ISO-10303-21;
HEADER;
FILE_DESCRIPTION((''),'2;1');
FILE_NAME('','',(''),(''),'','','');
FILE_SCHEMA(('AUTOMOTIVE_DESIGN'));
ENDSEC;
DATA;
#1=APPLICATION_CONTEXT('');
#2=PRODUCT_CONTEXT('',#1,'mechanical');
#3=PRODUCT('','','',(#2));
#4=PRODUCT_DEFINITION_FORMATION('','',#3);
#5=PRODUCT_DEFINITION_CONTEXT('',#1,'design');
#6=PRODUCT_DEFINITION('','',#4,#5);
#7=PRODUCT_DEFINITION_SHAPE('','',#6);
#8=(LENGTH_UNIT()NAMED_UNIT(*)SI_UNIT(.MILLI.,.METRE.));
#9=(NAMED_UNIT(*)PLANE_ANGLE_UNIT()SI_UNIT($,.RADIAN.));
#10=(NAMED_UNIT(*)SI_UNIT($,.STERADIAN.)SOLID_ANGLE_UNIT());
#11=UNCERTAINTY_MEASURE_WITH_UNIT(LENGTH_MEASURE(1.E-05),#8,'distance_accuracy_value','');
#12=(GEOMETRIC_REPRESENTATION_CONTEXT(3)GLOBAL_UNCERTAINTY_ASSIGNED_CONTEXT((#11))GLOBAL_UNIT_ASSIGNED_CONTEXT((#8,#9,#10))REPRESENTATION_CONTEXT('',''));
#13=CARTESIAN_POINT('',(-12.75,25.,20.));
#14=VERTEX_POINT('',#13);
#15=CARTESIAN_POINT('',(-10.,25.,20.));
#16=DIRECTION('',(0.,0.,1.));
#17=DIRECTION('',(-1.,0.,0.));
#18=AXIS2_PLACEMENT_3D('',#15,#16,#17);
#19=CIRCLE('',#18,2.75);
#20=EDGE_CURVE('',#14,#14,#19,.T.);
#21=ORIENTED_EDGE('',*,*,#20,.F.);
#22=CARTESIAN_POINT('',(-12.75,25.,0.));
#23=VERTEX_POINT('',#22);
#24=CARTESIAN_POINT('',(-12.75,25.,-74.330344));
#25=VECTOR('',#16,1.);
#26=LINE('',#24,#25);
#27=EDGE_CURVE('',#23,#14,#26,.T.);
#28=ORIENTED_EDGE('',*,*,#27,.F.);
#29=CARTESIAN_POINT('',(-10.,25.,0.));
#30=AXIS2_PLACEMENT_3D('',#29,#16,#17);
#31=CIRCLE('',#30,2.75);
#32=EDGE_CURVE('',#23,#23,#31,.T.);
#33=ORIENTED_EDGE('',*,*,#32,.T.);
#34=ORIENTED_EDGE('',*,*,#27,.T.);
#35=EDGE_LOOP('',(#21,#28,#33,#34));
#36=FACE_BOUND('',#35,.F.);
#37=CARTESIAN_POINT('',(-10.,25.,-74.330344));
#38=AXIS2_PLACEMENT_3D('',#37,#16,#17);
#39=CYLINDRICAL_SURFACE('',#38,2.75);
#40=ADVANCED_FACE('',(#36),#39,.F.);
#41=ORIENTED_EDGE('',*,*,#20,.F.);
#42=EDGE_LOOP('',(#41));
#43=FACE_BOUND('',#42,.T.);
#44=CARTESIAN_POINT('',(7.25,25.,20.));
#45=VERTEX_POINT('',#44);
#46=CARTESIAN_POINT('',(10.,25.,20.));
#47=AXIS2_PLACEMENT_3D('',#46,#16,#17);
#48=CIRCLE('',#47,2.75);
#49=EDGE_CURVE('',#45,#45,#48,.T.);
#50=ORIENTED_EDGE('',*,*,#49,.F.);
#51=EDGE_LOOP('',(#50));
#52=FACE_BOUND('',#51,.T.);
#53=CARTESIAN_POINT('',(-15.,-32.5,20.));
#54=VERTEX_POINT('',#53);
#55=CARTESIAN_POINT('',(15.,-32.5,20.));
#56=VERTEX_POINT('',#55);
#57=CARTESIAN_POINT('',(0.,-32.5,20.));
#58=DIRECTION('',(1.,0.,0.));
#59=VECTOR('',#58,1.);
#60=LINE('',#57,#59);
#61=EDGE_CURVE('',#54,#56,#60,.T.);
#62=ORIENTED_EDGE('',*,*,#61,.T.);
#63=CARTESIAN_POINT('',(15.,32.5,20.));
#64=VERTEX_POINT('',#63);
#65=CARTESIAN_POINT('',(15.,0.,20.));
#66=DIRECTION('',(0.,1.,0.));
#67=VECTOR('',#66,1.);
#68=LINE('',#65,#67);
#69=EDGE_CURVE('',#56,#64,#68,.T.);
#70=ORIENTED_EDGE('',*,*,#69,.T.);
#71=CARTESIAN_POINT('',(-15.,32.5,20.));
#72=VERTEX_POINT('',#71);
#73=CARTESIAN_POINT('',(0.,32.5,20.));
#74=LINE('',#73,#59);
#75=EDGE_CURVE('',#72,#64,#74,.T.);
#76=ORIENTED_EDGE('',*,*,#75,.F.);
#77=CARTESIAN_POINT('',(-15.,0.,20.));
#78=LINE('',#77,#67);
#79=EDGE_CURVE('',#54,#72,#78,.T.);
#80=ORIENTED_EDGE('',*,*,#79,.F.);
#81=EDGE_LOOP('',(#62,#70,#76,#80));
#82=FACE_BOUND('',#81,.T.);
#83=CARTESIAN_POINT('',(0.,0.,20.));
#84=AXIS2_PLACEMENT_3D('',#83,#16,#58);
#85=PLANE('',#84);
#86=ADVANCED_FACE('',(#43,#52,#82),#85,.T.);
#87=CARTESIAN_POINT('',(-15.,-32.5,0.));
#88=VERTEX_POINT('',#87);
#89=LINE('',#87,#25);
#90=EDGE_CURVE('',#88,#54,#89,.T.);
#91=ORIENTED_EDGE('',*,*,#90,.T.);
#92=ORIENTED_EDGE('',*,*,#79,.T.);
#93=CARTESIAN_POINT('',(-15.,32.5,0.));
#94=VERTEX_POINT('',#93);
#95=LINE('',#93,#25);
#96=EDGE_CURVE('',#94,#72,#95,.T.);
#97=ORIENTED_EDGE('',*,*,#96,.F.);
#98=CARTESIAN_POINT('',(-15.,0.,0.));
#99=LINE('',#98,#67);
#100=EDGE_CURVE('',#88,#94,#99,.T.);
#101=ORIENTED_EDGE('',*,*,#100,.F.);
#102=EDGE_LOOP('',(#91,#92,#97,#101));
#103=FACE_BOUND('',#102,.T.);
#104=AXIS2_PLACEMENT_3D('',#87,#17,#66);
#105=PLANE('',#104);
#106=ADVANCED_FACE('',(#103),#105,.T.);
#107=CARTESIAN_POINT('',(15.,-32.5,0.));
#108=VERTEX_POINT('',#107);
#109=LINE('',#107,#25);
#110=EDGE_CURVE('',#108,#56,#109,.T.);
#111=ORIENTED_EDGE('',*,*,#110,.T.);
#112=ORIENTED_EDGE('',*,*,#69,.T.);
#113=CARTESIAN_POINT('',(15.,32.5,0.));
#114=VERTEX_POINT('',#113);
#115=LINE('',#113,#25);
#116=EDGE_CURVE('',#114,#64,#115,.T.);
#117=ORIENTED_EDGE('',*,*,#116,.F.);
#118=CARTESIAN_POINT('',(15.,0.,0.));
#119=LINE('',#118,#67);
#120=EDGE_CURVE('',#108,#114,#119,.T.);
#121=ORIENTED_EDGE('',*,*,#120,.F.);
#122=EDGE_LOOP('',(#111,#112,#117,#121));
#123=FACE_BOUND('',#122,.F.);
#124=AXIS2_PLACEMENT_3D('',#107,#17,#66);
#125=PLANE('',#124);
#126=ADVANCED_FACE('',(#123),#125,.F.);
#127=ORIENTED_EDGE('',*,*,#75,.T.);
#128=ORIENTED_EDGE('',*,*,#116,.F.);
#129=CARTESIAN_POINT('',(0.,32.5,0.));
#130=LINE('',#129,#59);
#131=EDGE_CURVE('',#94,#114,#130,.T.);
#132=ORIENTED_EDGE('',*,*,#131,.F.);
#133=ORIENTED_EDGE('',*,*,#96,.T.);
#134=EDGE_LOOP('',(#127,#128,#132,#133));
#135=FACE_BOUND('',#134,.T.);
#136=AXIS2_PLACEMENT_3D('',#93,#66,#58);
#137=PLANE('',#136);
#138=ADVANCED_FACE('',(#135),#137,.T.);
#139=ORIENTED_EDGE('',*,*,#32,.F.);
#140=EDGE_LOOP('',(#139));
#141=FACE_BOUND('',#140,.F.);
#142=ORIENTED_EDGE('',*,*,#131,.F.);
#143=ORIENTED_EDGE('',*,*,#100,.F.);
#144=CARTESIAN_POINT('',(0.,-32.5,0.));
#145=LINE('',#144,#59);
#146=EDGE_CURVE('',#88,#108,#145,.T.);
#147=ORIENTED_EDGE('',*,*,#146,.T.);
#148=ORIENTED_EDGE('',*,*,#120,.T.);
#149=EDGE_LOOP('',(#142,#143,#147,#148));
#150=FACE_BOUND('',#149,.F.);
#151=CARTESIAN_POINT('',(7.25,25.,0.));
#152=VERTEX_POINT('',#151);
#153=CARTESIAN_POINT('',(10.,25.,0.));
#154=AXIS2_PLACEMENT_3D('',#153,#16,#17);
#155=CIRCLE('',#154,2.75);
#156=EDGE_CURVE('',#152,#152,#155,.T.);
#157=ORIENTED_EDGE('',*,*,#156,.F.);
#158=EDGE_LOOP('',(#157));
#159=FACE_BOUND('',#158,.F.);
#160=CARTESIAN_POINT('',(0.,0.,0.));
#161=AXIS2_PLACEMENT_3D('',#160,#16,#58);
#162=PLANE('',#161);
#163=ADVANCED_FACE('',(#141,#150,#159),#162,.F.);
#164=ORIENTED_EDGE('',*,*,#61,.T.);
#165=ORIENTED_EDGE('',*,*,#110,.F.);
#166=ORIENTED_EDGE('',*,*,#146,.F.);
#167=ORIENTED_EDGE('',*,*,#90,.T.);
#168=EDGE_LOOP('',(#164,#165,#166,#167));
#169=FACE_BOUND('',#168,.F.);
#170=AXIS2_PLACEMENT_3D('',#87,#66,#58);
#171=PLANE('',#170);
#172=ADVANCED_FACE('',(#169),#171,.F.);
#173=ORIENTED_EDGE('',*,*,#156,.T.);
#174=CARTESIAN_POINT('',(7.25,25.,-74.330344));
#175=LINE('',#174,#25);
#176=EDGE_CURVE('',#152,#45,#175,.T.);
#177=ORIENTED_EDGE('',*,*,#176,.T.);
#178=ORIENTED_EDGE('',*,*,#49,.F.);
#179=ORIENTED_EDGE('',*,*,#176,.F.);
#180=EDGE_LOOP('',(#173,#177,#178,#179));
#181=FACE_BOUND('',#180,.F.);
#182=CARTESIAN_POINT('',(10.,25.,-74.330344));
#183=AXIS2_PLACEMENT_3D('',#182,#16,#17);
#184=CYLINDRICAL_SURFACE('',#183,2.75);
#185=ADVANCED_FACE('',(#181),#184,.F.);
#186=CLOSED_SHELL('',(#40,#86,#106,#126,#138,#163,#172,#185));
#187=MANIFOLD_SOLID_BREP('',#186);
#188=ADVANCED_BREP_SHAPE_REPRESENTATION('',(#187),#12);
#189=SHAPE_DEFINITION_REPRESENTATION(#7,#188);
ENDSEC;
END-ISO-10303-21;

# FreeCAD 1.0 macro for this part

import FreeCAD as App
import Part
import Sketcher
Q = App.Units.Quantity


def add_polygon(sketch, points):
    """Adds a closed chain of lines whose ends are joined by coincident constraints."""
    first, n = sketch.GeometryCount, len(points)
    for a, b in zip(points, points[1:] + points[:1]):
        sketch.addGeometry(Part.LineSegment(App.Vector(*a, 0), App.Vector(*b, 0)), False)
    for i in range(n):
        sketch.addConstraint(Sketcher.Constraint("Coincident", first + i, 2, first + (i + 1) % n, 1))

doc = App.newDocument("Part")
body = doc.addObject("PartDesign::Body", "Body")

# Sketch on XY plane
sketch1 = body.newObject("Sketcher::SketchObject", "Sketch")
sketch1.AttachmentSupport = (doc.getObject("XY_Plane"), [""])
sketch1.MapMode = "FlatFace"
add_polygon(sketch1, [(-15, 32), (-15, -32), (15, -32), (15, 32)])  # lines 0-3
sketch1.addConstraint(Sketcher.Constraint("Vertical", 0))
sketch1.addConstraint(Sketcher.Constraint("Horizontal", 1))
sketch1.addConstraint(Sketcher.Constraint("Vertical", 2))
sketch1.addConstraint(Sketcher.Constraint("Horizontal", 3))
sketch1.addConstraint(Sketcher.Constraint("Symmetric", 0, 2, 2, 2, -1, 1))
sketch1.addConstraint(Sketcher.Constraint("DistanceX", 1, 1, 1, 2, Q("30 mm")))
sketch1.addConstraint(Sketcher.Constraint("DistanceY", 0, 2, 0, 1, Q("65 mm")))
pad1 = body.newObject("PartDesign::Pad", "Pad")
pad1.Profile = sketch1
pad1.Length = 20

# Sketch on XY plane
sketch2 = body.newObject("Sketcher::SketchObject", "Sketch001")
sketch2.AttachmentSupport = (doc.getObject("XY_Plane"), [""])
sketch2.MapMode = "FlatFace"
sketch2.addGeometry(Part.Circle(App.Vector(-10, 25, 0), App.Vector(0, 0, 1), 2.8), False)
sketch2.addGeometry(Part.Circle(App.Vector(10, 25, 0), App.Vector(0, 0, 1), 2.8), False)
sketch2.addConstraint(Sketcher.Constraint("Equal", 0, 1))
sketch2.addConstraint(Sketcher.Constraint("Symmetric", 0, 3, 1, 3, -2))
sketch2.addConstraint(Sketcher.Constraint("Diameter", 0, Q("5.5 mm")))
sketch2.addConstraint(Sketcher.Constraint("DistanceX", 0, 3, -1, 1, Q("10 mm")))
sketch2.addConstraint(Sketcher.Constraint("DistanceY", -1, 1, 0, 3, Q("25 mm")))
doc.recompute()
hole = body.newObject("PartDesign::Hole", "Hole")
hole.Profile = sketch2
hole.ThreadType = "None"
hole.Diameter = 5.5
hole.DepthType = "ThroughAll"
hole.Reversed = True

doc.recompute()
